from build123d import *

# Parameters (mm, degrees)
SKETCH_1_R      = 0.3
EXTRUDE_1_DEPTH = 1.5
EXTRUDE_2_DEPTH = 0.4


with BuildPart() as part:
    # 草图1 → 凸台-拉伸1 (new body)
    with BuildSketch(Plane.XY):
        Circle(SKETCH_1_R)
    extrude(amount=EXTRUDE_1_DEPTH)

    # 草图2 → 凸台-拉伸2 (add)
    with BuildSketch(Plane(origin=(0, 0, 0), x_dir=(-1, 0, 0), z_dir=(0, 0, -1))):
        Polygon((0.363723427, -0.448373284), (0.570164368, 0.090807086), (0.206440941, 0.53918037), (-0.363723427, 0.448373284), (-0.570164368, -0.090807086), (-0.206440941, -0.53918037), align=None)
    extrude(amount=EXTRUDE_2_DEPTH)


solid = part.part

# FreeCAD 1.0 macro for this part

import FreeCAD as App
import Part
import Sketcher
Q = App.Units.Quantity

doc = App.newDocument("Part")
body = doc.addObject("PartDesign::Body", "Body")

# Sketch on XY plane
sketch1 = body.newObject("Sketcher::SketchObject", "Sketch")
sketch1.AttachmentSupport = (doc.getObject("XY_Plane"), [""])
sketch1.MapMode = "FlatFace"
sketch1.addGeometry(Part.Circle(App.Vector(0, 0, 0), App.Vector(0, 0, 1), 0.3), False)
sketch1.addConstraint([
    Sketcher.Constraint("Coincident", 0, 3, -1, 1),
    Sketcher.Constraint("Diameter", 0, Q("0.6 mm")),
])
pad1 = body.newObject("PartDesign::Pad", "Pad")
pad1.Profile = sketch1
pad1.Length = 1.5

# Sketch on XY plane
sketch2 = body.newObject("Sketcher::SketchObject", "Sketch001")
sketch2.AttachmentSupport = (doc.getObject("XY_Plane"), [""])
sketch2.MapMode = "FlatFace"
sketch2.addGeometry([
    Part.LineSegment(App.Vector(-0.4, -0.4, 0), App.Vector(-0.6, 0.1, 0)),  # 0
    Part.LineSegment(App.Vector(-0.6, 0.1, 0), App.Vector(-0.2, 0.5, 0)),  # 1
    Part.LineSegment(App.Vector(-0.2, 0.5, 0), App.Vector(0.4, 0.4, 0)),  # 2
    Part.LineSegment(App.Vector(0.4, 0.4, 0), App.Vector(0.6, -0.1, 0)),  # 3
    Part.LineSegment(App.Vector(0.6, -0.1, 0), App.Vector(0.2, -0.5, 0)),  # 4
    Part.LineSegment(App.Vector(0.2, -0.5, 0), App.Vector(-0.4, -0.4, 0)),  # 5
], False)
sketch2.addConstraint([
    Sketcher.Constraint("Coincident", 0, 2, 1, 1),
    Sketcher.Constraint("Coincident", 1, 2, 2, 1),
    Sketcher.Constraint("Coincident", 2, 2, 3, 1),
    Sketcher.Constraint("Coincident", 3, 2, 4, 1),
    Sketcher.Constraint("Coincident", 4, 2, 5, 1),
    Sketcher.Constraint("Coincident", 5, 2, 0, 1),
    Sketcher.Constraint("Symmetric", 0, 2, 3, 2, -1, 1),
    Sketcher.Constraint("Symmetric", 1, 2, 4, 2, -1, 1),
    Sketcher.Constraint("Symmetric", 2, 2, 5, 2, -1, 1),
    Sketcher.Constraint("Equal", 0, 1),
    Sketcher.Constraint("Equal", 1, 2),
    Sketcher.Constraint("Distance", 0, Q("0.57735 mm")),
    Sketcher.Constraint("DistanceX", 1, 2, -1, 1, Q("0.206441 mm")),
    Sketcher.Constraint("DistanceY", -1, 1, 1, 2, Q("0.53918 mm")),
    Sketcher.Constraint("DistanceX", 2, 2, 3, 2, Q("0.206441 mm")),
])
pad2 = body.newObject("PartDesign::Pad", "Pad001")
pad2.Profile = sketch2
pad2.Length = 0.4
pad2.Reversed = True

doc.recompute()
